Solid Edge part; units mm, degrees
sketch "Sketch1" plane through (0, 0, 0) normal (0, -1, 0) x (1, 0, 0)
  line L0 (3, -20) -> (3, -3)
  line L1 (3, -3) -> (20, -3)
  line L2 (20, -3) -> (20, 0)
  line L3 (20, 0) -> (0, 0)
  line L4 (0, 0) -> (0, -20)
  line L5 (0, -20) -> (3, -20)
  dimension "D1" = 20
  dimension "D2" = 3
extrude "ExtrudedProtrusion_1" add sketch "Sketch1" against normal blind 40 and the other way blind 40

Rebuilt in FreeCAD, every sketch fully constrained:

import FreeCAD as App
import Part
import Sketcher
from FreeCAD import Vector
Q = App.Units.Quantity

doc = App.newDocument("Part")
params = doc.addObject("Spreadsheet::Sheet", "Params")
for row, (alias, value) in enumerate([
    ("sketch1_width", "3 mm"),
    ("sketch1_width2", "17 mm"),
    ("pad1_length", "40 mm"),
    ("pad1_length2", "40 mm"),
], start=1):
    params.set(f"A{row}", alias)
    params.set(f"B{row}", "=" + value)
    params.setAlias(f"B{row}", alias)

body = doc.addObject("PartDesign::Body", "Body")

# Sketch on XZ plane
sketch1 = doc.addObject("Sketcher::SketchObject", "Sketch")
body.addObject(sketch1)
sketch1.AttachmentSupport = (doc.XZ_Plane, [""])
sketch1.MapMode = "FlatFace"
sketch1.addGeometry(Part.LineSegment(Vector(0, -20, 0), Vector(3, -20, 0)), False)
sketch1.addGeometry(Part.LineSegment(Vector(3, -20, 0), Vector(3, -3, 0)), False)
sketch1.addGeometry(Part.LineSegment(Vector(3, -3, 0), Vector(20, -3, 0)), False)
sketch1.addGeometry(Part.LineSegment(Vector(20, -3, 0), Vector(20, 0, 0)), False)
sketch1.addGeometry(Part.LineSegment(Vector(20, 0, 0), Vector(0, 0, 0)), False)
sketch1.addGeometry(Part.LineSegment(Vector(0, 0, 0), Vector(0, -20, 0)), False)
sketch1.addConstraint(Sketcher.Constraint("Coincident", 0, 2, 1, 1))
sketch1.addConstraint(Sketcher.Constraint("Coincident", 1, 2, 2, 1))
sketch1.addConstraint(Sketcher.Constraint("Coincident", 2, 2, 3, 1))
sketch1.addConstraint(Sketcher.Constraint("Coincident", 3, 2, 4, 1))
sketch1.addConstraint(Sketcher.Constraint("Coincident", 4, 2, 5, 1))
sketch1.addConstraint(Sketcher.Constraint("Coincident", 5, 2, 0, 1))
sketch1.addConstraint(Sketcher.Constraint("Horizontal", 0))
sketch1.addConstraint(Sketcher.Constraint("Vertical", 1))
sketch1.addConstraint(Sketcher.Constraint("Horizontal", 2))
sketch1.addConstraint(Sketcher.Constraint("Vertical", 3))
sketch1.addConstraint(Sketcher.Constraint("Horizontal", 4))
sketch1.addConstraint(Sketcher.Constraint("Vertical", 5))
sketch1.addConstraint(Sketcher.Constraint("Coincident", 4, 2, -1, 1))
sketch1.addConstraint(Sketcher.Constraint("Equal", 2, 1))
sketch1.addConstraint(Sketcher.Constraint("Equal", 0, 3))
sketch1.addConstraint(Sketcher.Constraint("DistanceX", 0, 1, 0, 2, Q("3 mm")))
sketch1.addConstraint(Sketcher.Constraint("DistanceX", 2, 1, 2, 2, Q("17 mm")))
sketch1.setExpression("Constraints[15]", "Params.sketch1_width")
sketch1.setExpression("Constraints[16]", "Params.sketch1_width2")
pad1 = doc.addObject("PartDesign::Pad", "Pad")
body.addObject(pad1)
pad1.Profile = sketch1
pad1.Type = "TwoLengths"
pad1.setExpression("Length", "Params.pad1_length")
pad1.setExpression("Length2", "Params.pad1_length2")
pad1.Reversed = True

doc.recompute()
